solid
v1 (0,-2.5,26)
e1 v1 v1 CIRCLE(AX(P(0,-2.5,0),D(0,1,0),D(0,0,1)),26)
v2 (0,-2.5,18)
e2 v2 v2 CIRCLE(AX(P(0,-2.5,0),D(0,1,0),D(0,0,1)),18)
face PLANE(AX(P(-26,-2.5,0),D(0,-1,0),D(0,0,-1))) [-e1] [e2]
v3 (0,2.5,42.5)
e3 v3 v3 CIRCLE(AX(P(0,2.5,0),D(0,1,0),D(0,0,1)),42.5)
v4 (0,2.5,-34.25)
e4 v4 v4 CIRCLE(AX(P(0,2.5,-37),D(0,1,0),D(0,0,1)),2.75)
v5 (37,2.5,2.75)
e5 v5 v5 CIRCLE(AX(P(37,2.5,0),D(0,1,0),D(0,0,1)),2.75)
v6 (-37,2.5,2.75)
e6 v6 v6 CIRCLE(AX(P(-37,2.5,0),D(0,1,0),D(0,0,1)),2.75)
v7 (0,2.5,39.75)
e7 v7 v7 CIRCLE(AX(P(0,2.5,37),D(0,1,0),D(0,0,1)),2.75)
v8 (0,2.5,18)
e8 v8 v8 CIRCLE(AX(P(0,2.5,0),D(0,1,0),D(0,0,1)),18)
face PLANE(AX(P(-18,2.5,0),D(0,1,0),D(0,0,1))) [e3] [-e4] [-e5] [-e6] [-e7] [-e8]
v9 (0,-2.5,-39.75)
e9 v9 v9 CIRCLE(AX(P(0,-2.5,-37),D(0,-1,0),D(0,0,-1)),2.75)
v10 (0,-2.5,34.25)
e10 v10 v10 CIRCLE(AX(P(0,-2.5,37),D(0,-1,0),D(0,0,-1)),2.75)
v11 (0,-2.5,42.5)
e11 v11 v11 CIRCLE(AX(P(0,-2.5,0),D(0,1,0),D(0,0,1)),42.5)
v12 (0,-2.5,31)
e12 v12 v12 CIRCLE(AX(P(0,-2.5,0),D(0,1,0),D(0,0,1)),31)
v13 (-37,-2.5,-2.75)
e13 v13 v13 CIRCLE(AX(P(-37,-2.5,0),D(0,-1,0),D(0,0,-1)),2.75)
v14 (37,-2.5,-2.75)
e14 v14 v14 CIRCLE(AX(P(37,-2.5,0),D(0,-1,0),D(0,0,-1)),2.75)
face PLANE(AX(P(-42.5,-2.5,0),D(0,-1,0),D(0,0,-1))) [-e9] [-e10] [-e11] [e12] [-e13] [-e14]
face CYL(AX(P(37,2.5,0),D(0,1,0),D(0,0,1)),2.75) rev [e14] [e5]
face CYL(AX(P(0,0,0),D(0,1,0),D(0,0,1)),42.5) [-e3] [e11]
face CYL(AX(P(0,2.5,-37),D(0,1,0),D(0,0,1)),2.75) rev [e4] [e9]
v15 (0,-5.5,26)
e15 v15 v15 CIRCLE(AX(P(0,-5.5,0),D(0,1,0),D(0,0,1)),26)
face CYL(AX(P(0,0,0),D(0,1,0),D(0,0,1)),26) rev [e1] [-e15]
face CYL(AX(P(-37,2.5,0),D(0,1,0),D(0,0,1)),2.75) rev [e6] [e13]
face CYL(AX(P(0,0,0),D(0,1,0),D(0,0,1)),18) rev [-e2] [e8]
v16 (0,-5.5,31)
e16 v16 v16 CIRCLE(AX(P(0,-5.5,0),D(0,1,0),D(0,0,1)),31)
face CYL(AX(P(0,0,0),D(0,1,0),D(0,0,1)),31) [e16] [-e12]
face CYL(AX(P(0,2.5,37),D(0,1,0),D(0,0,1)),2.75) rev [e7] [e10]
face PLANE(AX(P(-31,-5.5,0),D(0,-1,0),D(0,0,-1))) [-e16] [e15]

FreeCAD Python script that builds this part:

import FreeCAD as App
import Part
import Sketcher

V = App.Vector
Q = App.Units.Quantity


def add_polygon(sketch, points):
    """Adds a closed chain of lines whose ends are joined by coincident constraints."""
    first, n = sketch.GeometryCount, len(points)
    for a, b in zip(points, points[1:] + points[:1]):
        sketch.addGeometry(Part.LineSegment(App.Vector(*a, 0), App.Vector(*b, 0)), False)
    for i in range(n):
        sketch.addConstraint(Sketcher.Constraint("Coincident", first + i, 2, first + (i + 1) % n, 1))

doc = App.newDocument("Part")
body = doc.addObject("PartDesign::Body", "Body")

# Sketch on XY plane
sketch1 = body.newObject("Sketcher::SketchObject", "Sketch")
sketch1.AttachmentSupport = (doc.getObject("XY_Plane"), [""])
sketch1.MapMode = "FlatFace"
add_polygon(sketch1, [(-18, 2.5), (-42.5, 2.5), (-42.5, -2.5), (-31, -2.5), (-31, -5.5), (-26, -5.5), (-26, -2.5), (-18, -2.5)])  # lines 0-7
sketch1.addConstraint(Sketcher.Constraint("Horizontal", 0))
sketch1.addConstraint(Sketcher.Constraint("Vertical", 1))
sketch1.addConstraint(Sketcher.Constraint("Horizontal", 2))
sketch1.addConstraint(Sketcher.Constraint("Vertical", 3))
sketch1.addConstraint(Sketcher.Constraint("Horizontal", 4))
sketch1.addConstraint(Sketcher.Constraint("Vertical", 5))
sketch1.addConstraint(Sketcher.Constraint("Horizontal", 6))
sketch1.addConstraint(Sketcher.Constraint("Vertical", 7))
sketch1.addConstraint(Sketcher.Constraint("Horizontal", 2, 2, 5, 2))
sketch1.addConstraint(Sketcher.Constraint("Equal", 4, 1))
sketch1.addConstraint(Sketcher.Constraint("DistanceX", 4, 1, 4, 2, Q("5 mm")))
sketch1.addConstraint(Sketcher.Constraint("DistanceX", 6, 1, 6, 2, Q("8 mm")))
sketch1.addConstraint(Sketcher.Constraint("DistanceY", 3, 2, 3, 1, Q("3 mm")))
sketch1.addConstraint(Sketcher.Constraint("DistanceX", 0, 2, 0, 1, Q("24.5 mm")))
sketch1.addConstraint(Sketcher.Constraint("DistanceX", 2, 2, -1, 1, Q("31 mm")))
sketch1.addConstraint(Sketcher.Constraint("DistanceY", -1, 1, 0, 2, Q("2.5 mm")))
revolution = body.newObject("PartDesign::Revolution", "Revolution")
revolution.Profile = sketch1
revolution.ReferenceAxis = (sketch1, ["V_Axis"])
revolution.Angle = 360

# Sketch on XZ plane
sketch2 = body.newObject("Sketcher::SketchObject", "Sketch001")
sketch2.AttachmentSupport = (doc.getObject("XZ_Plane"), [""])
sketch2.MapMode = "FlatFace"
sketch2.AttachmentOffset = App.Placement(V(0, 0, -2.5), App.Rotation())
sketch2.addGeometry(Part.Circle(V(37, 0, 0), V(0, 0, 1), 2.75), False)
sketch2.addConstraint(Sketcher.Constraint("PointOnObject", 0, 3, -1))
sketch2.addConstraint(Sketcher.Constraint("Diameter", 0, Q("5.5 mm")))
sketch2.addConstraint(Sketcher.Constraint("DistanceX", -1, 1, 0, 3, Q("37 mm")))
doc.recompute()
hole = body.newObject("PartDesign::Hole", "Hole")
hole.Profile = sketch2
hole.ThreadType = "None"
hole.Diameter = 5.5
hole.DepthType = "ThroughAll"
hole.Reversed = True
doc.recompute()

polarpattern = body.newObject("PartDesign::PolarPattern", "PolarPattern")
polarpattern.Originals = [hole]
polarpattern.Axis = (doc.getObject("Y_Axis"), [""])
polarpattern.Angle = 360
polarpattern.Occurrences = 4
body.Tip = polarpattern

doc.recompute()
